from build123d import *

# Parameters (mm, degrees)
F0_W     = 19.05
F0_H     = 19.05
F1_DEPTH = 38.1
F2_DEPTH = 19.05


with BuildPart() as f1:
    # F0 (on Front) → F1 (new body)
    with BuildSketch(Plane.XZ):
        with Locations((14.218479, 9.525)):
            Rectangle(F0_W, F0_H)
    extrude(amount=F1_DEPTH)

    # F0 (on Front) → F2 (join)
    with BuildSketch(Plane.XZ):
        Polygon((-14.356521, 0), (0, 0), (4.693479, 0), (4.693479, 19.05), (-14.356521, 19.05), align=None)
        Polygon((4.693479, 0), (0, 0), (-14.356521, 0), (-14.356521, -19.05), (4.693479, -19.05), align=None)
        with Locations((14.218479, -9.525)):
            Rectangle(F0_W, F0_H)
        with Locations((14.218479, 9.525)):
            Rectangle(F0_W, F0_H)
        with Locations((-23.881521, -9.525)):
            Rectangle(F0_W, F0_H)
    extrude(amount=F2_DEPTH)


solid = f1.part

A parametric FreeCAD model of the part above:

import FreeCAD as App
import Part
import Sketcher

V = App.Vector
Q = App.Units.Quantity


def add_polygon(sketch, points):
    """Adds a closed chain of lines whose ends are joined by coincident constraints."""
    first, n = sketch.GeometryCount, len(points)
    for a, b in zip(points, points[1:] + points[:1]):
        sketch.addGeometry(Part.LineSegment(App.Vector(*a, 0), App.Vector(*b, 0)), False)
    for i in range(n):
        sketch.addConstraint(Sketcher.Constraint("Coincident", first + i, 2, first + (i + 1) % n, 1))

doc = App.newDocument("Part")
body = doc.addObject("PartDesign::Body", "Body")

# Sketch on XZ plane
sketch1 = body.newObject("Sketcher::SketchObject", "Sketch")
sketch1.AttachmentSupport = (doc.getObject("XZ_Plane"), [""])
sketch1.MapMode = "FlatFace"
add_polygon(sketch1, [(5, 19), (5, 0), (24, 0), (24, 19)])  # lines 0-3
sketch1.addConstraint([
    Sketcher.Constraint("Vertical", 0),
    Sketcher.Constraint("Horizontal", 1),
    Sketcher.Constraint("Vertical", 2),
    Sketcher.Constraint("Horizontal", 3),
    Sketcher.Constraint("PointOnObject", 0, 2, -1),
    Sketcher.Constraint("Equal", 3, 0),
    Sketcher.Constraint("DistanceX", 1, 1, 1, 2, Q("0.75 in")),
    Sketcher.Constraint("DistanceX", -1, 1, 0, 2, 4.693479),
])
pad1 = body.newObject("PartDesign::Pad", "Pad")
pad1.Profile = sketch1
pad1.Length = Q("1.5 in")

# Sketch on XZ plane
sketch2 = body.newObject("Sketcher::SketchObject", "Sketch001")
sketch2.AttachmentSupport = (doc.getObject("XZ_Plane"), [""])
sketch2.MapMode = "FlatFace"
add_polygon(sketch2, [(-14, 19), (-14, 0), (-33, 0), (-33, -19), (24, -19), (24, 19)])  # lines 0-5
sketch2.addConstraint([
    Sketcher.Constraint("Vertical", 0),
    Sketcher.Constraint("Horizontal", 1),
    Sketcher.Constraint("Vertical", 2),
    Sketcher.Constraint("Horizontal", 3),
    Sketcher.Constraint("Vertical", 4),
    Sketcher.Constraint("Horizontal", 5),
    Sketcher.Constraint("PointOnObject", 0, 2, -1),
    Sketcher.Constraint("Equal", 1, 0),
    Sketcher.Constraint("Equal", 0, 2),
    Sketcher.Constraint("Equal", 5, 4),
    Sketcher.Constraint("DistanceX", 5, 2, 5, 1, Q("1.5 in")),
    Sketcher.Constraint("DistanceX", 0, 2, -1, 1, 14.356521),
])
pad2 = body.newObject("PartDesign::Pad", "Pad001")
pad2.Profile = sketch2
pad2.Length = Q("0.75 in")

doc.recompute()
